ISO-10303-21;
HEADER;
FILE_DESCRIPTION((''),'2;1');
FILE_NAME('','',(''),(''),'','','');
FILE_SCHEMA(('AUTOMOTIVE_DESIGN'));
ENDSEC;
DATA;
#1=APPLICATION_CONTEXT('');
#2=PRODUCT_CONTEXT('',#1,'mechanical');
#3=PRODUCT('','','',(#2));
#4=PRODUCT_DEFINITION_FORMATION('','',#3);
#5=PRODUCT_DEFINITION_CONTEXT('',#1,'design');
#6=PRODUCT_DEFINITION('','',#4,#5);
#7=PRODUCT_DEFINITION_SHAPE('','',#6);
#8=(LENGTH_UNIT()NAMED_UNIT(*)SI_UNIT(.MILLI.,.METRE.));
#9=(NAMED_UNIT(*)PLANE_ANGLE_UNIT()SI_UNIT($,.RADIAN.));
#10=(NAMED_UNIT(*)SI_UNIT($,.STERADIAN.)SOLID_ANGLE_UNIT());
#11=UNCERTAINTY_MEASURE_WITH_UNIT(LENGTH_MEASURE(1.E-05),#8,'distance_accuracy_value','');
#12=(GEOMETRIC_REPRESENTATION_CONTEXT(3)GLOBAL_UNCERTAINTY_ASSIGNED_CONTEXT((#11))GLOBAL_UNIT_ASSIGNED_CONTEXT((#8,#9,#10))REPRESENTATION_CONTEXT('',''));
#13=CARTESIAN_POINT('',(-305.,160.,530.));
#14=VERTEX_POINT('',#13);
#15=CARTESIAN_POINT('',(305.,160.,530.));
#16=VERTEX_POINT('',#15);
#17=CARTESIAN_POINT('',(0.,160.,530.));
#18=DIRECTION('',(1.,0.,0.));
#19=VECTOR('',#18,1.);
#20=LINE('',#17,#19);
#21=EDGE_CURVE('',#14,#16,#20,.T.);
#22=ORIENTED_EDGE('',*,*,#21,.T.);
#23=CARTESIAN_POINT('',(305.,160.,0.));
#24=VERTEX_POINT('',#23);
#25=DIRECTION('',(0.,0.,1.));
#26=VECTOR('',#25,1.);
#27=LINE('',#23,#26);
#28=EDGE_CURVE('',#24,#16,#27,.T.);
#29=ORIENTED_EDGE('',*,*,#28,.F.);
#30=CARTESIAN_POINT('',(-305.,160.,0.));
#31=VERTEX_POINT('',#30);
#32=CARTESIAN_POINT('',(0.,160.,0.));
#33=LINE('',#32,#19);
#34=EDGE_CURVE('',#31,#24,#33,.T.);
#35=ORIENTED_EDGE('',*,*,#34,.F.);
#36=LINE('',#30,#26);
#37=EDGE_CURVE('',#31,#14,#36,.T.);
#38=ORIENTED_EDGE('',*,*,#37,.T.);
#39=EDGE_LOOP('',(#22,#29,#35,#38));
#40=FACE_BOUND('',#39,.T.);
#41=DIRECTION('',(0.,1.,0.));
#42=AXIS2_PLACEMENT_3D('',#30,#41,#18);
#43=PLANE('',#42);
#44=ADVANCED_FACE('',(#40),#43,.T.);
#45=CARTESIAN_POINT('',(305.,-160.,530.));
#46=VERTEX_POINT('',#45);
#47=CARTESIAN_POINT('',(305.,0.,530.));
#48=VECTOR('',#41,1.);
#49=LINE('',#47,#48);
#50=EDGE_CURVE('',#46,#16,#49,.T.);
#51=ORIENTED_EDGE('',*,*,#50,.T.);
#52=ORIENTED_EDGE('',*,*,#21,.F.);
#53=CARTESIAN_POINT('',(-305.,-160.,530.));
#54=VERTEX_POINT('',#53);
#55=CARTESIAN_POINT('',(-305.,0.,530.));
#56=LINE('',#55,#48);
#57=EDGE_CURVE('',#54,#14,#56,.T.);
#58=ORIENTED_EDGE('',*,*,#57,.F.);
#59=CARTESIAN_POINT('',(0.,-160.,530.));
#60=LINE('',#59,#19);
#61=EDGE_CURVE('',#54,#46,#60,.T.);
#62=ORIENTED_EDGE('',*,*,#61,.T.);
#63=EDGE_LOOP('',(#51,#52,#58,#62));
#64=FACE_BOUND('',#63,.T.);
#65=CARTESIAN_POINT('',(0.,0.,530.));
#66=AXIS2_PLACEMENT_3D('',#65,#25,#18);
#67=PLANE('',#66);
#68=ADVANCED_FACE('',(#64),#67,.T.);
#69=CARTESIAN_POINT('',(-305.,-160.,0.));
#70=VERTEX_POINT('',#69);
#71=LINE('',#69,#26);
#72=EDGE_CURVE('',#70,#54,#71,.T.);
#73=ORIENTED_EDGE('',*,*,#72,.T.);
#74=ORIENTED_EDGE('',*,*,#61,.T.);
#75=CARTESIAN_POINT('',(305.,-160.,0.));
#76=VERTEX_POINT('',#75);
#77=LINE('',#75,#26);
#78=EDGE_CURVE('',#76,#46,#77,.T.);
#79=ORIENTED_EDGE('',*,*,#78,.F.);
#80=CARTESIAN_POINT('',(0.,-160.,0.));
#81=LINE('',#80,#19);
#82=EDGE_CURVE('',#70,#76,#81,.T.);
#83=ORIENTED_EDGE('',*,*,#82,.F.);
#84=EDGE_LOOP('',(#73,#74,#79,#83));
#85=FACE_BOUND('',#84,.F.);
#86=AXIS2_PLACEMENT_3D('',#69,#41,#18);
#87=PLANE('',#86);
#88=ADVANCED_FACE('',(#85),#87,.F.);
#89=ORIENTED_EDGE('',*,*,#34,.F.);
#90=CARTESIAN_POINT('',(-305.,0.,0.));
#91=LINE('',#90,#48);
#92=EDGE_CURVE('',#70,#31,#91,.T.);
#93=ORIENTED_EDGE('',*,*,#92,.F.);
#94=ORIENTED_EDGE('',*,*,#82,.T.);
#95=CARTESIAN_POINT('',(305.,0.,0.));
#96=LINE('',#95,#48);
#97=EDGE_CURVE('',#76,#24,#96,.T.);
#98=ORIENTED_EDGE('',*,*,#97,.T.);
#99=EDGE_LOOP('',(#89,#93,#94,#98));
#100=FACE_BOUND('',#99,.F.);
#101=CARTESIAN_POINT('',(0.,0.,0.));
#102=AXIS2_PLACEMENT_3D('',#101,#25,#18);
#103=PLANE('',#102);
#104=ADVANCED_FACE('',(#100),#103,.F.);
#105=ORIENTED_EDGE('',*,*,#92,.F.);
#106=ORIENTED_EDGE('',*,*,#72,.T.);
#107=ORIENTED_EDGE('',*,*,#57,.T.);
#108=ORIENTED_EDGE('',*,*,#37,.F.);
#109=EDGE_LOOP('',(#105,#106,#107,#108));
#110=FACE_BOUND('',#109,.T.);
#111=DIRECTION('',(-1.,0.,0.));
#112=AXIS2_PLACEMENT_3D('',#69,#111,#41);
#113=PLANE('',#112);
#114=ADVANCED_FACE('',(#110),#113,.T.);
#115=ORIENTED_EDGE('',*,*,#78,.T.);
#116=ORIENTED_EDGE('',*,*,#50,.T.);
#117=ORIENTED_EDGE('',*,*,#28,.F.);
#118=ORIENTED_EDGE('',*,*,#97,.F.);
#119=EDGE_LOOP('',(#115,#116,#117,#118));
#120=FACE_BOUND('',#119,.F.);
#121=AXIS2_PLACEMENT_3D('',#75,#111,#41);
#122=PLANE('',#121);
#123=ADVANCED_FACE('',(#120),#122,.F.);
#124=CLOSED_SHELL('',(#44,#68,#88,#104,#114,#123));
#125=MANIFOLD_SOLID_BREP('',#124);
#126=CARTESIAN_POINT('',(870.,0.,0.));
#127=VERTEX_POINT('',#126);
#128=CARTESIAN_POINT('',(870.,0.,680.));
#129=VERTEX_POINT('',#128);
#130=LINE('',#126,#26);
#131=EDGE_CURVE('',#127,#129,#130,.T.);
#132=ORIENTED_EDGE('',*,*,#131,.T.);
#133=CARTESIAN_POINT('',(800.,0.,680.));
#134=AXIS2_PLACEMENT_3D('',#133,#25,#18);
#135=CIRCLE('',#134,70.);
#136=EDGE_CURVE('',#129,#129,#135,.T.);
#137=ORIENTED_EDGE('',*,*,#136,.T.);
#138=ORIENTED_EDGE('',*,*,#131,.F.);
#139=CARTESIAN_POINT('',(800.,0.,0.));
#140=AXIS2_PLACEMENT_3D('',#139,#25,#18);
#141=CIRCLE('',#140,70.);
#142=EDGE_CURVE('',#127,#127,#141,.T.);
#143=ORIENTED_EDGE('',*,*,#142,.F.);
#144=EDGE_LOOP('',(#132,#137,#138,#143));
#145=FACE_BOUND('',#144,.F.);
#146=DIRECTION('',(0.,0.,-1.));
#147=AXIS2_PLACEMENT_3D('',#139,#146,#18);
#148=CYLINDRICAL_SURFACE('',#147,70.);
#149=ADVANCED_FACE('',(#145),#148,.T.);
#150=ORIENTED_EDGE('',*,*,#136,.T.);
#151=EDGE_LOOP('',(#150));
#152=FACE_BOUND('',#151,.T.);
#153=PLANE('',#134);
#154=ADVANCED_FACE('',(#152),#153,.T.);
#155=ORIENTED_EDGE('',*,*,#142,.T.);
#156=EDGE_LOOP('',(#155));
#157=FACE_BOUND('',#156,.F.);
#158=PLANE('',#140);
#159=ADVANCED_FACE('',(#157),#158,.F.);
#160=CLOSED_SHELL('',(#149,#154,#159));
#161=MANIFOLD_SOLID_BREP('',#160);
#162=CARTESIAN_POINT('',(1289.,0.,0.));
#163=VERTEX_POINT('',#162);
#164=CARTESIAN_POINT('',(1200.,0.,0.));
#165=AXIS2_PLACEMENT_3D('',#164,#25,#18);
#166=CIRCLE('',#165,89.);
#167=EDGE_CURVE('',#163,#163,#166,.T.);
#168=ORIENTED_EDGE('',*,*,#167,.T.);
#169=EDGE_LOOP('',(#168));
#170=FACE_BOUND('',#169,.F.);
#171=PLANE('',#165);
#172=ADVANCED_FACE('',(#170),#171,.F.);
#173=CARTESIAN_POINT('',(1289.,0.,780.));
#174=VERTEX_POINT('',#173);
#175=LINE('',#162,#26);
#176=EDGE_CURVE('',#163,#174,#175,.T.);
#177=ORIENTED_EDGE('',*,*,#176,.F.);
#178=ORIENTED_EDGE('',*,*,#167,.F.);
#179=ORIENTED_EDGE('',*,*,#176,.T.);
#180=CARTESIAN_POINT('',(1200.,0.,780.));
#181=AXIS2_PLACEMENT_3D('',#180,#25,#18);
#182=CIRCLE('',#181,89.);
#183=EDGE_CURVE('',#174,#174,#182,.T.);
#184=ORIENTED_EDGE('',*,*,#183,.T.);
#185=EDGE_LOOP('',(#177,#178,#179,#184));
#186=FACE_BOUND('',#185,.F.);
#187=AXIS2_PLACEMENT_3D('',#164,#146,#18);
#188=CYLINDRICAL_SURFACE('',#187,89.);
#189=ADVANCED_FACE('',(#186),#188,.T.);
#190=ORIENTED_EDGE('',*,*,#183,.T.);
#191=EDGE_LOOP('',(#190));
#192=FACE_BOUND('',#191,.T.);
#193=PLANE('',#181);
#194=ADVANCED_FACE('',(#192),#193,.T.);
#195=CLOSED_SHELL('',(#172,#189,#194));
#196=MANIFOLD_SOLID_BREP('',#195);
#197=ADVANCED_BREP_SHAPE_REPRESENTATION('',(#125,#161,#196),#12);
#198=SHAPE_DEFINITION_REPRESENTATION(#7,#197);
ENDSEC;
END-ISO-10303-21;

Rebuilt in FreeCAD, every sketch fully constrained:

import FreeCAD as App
import Part
import Sketcher
from FreeCAD import Vector


def add_polygon(sketch, points):
    """Adds a closed chain of lines whose ends are joined by coincident constraints."""
    first, n = sketch.GeometryCount, len(points)
    for a, b in zip(points, points[1:] + points[:1]):
        sketch.addGeometry(Part.LineSegment(App.Vector(*a, 0), App.Vector(*b, 0)), False)
    for i in range(n):
        sketch.addConstraint(Sketcher.Constraint("Coincident", first + i, 2, first + (i + 1) % n, 1))

doc = App.newDocument("Part")
body = doc.addObject("PartDesign::Body", "Body")

sketch1 = doc.addObject("Sketcher::SketchObject", "Sketch")
body.addObject(sketch1)
sketch1.AttachmentSupport = (doc.XY_Plane, [""])
sketch1.MapMode = "FlatFace"
add_polygon(sketch1, [(-305, 160), (-305, -160), (305, -160), (305, 160)])
sketch1.addConstraint(Sketcher.Constraint("Vertical", 0))
sketch1.addConstraint(Sketcher.Constraint("Horizontal", 1))
sketch1.addConstraint(Sketcher.Constraint("Vertical", 2))
sketch1.addConstraint(Sketcher.Constraint("Horizontal", 3))
sketch1.addConstraint(Sketcher.Constraint("Symmetric", 0, 2, 2, 2, -1, 1))
sketch1.addConstraint(Sketcher.Constraint("DistanceX", 1, 1, 1, 2, 610.0))
sketch1.addConstraint(Sketcher.Constraint("DistanceY", 0, 2, 0, 1, 320.0))
pad1 = doc.addObject("PartDesign::Pad", "Pad")
body.addObject(pad1)
pad1.Profile = sketch1
pad1.Length = 530
body2 = doc.addObject("PartDesign::Body", "Body001")

sketch2 = doc.addObject("Sketcher::SketchObject", "Sketch001")
body2.addObject(sketch2)
sketch2.AttachmentSupport = (doc.getObject("XY_Plane001"), [""])
sketch2.MapMode = "FlatFace"
sketch2.addGeometry(Part.Circle(Vector(800, 0, 0), Vector(0, 0, 1), 70), False)
sketch2.addConstraint(Sketcher.Constraint("PointOnObject", 0, 3, -1))
sketch2.addConstraint(Sketcher.Constraint("Diameter", 0, 140.0))
sketch2.addConstraint(Sketcher.Constraint("DistanceX", -1, 1, 0, 3, 800.0))
pad2 = doc.addObject("PartDesign::Pad", "Pad001")
body2.addObject(pad2)
pad2.Profile = sketch2
pad2.Length = 680
body3 = doc.addObject("PartDesign::Body", "Body002")

sketch3 = doc.addObject("Sketcher::SketchObject", "Sketch002")
body3.addObject(sketch3)
sketch3.AttachmentSupport = (doc.getObject("XY_Plane002"), [""])
sketch3.MapMode = "FlatFace"
sketch3.addGeometry(Part.Circle(Vector(1200, 0, 0), Vector(0, 0, 1), 89), False)
sketch3.addConstraint(Sketcher.Constraint("PointOnObject", 0, 3, -1))
sketch3.addConstraint(Sketcher.Constraint("Diameter", 0, 178.0))
sketch3.addConstraint(Sketcher.Constraint("DistanceX", -1, 1, 0, 3, 1200.0))
pad3 = doc.addObject("PartDesign::Pad", "Pad002")
body3.addObject(pad3)
pad3.Profile = sketch3
pad3.Length = 780

doc.recompute()
